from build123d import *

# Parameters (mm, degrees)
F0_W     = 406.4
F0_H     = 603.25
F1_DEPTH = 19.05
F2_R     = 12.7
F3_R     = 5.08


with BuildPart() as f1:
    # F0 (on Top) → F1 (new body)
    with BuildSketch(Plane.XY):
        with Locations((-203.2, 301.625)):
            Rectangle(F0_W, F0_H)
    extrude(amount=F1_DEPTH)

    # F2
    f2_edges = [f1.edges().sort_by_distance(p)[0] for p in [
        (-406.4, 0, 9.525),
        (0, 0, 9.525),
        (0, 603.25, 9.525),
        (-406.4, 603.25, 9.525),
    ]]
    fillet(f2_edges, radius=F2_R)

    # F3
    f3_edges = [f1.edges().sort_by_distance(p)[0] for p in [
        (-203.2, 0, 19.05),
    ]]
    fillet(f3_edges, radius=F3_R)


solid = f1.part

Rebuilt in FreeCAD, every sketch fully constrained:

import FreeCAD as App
import Part
import Sketcher
Q = App.Units.Quantity


def edges_at(feature, points):
    """Names of the edges that pass closest to the given points."""
    edges = feature.Shape.Edges
    near = lambda p: min(range(len(edges)), key=lambda i: edges[i].distToShape(Part.Vertex(*p))[0])
    return sorted({f"Edge{near(p) + 1}" for p in points})

doc = App.newDocument("Part")
body = doc.addObject("PartDesign::Body", "Body")

sketch1 = body.newObject("Sketcher::SketchObject", "Sketch")
sketch1.AttachmentSupport = (doc.getObject("XY_Plane"), [""])
sketch1.MapMode = "FlatFace"
sketch1.addGeometry(Part.LineSegment(App.Vector(-406, 603, 0), App.Vector(-406, 0, 0)), False)
sketch1.addGeometry(Part.LineSegment(App.Vector(-406, 0, 0), App.Vector(0, 0, 0)), False)
sketch1.addGeometry(Part.LineSegment(App.Vector(0, 0, 0), App.Vector(0, 603, 0)), False)
sketch1.addGeometry(Part.LineSegment(App.Vector(0, 603, 0), App.Vector(-406, 603, 0)), False)
sketch1.addConstraint(Sketcher.Constraint("Coincident", 0, 2, 1, 1))
sketch1.addConstraint(Sketcher.Constraint("Coincident", 1, 2, 2, 1))
sketch1.addConstraint(Sketcher.Constraint("Coincident", 2, 2, 3, 1))
sketch1.addConstraint(Sketcher.Constraint("Coincident", 3, 2, 0, 1))
sketch1.addConstraint(Sketcher.Constraint("Vertical", 0))
sketch1.addConstraint(Sketcher.Constraint("Horizontal", 1))
sketch1.addConstraint(Sketcher.Constraint("Vertical", 2))
sketch1.addConstraint(Sketcher.Constraint("Horizontal", 3))
sketch1.addConstraint(Sketcher.Constraint("Coincident", 1, 2, -1, 1))
sketch1.addConstraint(Sketcher.Constraint("DistanceX", 1, 1, 1, 2, Q("16 in")))
sketch1.addConstraint(Sketcher.Constraint("DistanceY", 0, 2, 0, 1, Q("23.75 in")))
pad1 = body.newObject("PartDesign::Pad", "Pad")
pad1.Profile = sketch1
pad1.Length = Q("0.75 in")
doc.recompute()

fillet = body.newObject("PartDesign::Fillet", "Fillet")
fillet.Base = (pad1, edges_at(pad1, [
    (-406.4, 0, 9.525),
    (0, 0, 9.525),
    (0, 603.25, 9.525),
    (-406.4, 603.25, 9.525),
]))
fillet.Radius = Q("0.5 in")
doc.recompute()

fillet2 = body.newObject("PartDesign::Fillet", "Fillet001")
fillet2.Base = (fillet, edges_at(fillet, [(-203.2, 0, 19.05)]))
fillet2.Radius = Q("0.2 in")

doc.recompute()
